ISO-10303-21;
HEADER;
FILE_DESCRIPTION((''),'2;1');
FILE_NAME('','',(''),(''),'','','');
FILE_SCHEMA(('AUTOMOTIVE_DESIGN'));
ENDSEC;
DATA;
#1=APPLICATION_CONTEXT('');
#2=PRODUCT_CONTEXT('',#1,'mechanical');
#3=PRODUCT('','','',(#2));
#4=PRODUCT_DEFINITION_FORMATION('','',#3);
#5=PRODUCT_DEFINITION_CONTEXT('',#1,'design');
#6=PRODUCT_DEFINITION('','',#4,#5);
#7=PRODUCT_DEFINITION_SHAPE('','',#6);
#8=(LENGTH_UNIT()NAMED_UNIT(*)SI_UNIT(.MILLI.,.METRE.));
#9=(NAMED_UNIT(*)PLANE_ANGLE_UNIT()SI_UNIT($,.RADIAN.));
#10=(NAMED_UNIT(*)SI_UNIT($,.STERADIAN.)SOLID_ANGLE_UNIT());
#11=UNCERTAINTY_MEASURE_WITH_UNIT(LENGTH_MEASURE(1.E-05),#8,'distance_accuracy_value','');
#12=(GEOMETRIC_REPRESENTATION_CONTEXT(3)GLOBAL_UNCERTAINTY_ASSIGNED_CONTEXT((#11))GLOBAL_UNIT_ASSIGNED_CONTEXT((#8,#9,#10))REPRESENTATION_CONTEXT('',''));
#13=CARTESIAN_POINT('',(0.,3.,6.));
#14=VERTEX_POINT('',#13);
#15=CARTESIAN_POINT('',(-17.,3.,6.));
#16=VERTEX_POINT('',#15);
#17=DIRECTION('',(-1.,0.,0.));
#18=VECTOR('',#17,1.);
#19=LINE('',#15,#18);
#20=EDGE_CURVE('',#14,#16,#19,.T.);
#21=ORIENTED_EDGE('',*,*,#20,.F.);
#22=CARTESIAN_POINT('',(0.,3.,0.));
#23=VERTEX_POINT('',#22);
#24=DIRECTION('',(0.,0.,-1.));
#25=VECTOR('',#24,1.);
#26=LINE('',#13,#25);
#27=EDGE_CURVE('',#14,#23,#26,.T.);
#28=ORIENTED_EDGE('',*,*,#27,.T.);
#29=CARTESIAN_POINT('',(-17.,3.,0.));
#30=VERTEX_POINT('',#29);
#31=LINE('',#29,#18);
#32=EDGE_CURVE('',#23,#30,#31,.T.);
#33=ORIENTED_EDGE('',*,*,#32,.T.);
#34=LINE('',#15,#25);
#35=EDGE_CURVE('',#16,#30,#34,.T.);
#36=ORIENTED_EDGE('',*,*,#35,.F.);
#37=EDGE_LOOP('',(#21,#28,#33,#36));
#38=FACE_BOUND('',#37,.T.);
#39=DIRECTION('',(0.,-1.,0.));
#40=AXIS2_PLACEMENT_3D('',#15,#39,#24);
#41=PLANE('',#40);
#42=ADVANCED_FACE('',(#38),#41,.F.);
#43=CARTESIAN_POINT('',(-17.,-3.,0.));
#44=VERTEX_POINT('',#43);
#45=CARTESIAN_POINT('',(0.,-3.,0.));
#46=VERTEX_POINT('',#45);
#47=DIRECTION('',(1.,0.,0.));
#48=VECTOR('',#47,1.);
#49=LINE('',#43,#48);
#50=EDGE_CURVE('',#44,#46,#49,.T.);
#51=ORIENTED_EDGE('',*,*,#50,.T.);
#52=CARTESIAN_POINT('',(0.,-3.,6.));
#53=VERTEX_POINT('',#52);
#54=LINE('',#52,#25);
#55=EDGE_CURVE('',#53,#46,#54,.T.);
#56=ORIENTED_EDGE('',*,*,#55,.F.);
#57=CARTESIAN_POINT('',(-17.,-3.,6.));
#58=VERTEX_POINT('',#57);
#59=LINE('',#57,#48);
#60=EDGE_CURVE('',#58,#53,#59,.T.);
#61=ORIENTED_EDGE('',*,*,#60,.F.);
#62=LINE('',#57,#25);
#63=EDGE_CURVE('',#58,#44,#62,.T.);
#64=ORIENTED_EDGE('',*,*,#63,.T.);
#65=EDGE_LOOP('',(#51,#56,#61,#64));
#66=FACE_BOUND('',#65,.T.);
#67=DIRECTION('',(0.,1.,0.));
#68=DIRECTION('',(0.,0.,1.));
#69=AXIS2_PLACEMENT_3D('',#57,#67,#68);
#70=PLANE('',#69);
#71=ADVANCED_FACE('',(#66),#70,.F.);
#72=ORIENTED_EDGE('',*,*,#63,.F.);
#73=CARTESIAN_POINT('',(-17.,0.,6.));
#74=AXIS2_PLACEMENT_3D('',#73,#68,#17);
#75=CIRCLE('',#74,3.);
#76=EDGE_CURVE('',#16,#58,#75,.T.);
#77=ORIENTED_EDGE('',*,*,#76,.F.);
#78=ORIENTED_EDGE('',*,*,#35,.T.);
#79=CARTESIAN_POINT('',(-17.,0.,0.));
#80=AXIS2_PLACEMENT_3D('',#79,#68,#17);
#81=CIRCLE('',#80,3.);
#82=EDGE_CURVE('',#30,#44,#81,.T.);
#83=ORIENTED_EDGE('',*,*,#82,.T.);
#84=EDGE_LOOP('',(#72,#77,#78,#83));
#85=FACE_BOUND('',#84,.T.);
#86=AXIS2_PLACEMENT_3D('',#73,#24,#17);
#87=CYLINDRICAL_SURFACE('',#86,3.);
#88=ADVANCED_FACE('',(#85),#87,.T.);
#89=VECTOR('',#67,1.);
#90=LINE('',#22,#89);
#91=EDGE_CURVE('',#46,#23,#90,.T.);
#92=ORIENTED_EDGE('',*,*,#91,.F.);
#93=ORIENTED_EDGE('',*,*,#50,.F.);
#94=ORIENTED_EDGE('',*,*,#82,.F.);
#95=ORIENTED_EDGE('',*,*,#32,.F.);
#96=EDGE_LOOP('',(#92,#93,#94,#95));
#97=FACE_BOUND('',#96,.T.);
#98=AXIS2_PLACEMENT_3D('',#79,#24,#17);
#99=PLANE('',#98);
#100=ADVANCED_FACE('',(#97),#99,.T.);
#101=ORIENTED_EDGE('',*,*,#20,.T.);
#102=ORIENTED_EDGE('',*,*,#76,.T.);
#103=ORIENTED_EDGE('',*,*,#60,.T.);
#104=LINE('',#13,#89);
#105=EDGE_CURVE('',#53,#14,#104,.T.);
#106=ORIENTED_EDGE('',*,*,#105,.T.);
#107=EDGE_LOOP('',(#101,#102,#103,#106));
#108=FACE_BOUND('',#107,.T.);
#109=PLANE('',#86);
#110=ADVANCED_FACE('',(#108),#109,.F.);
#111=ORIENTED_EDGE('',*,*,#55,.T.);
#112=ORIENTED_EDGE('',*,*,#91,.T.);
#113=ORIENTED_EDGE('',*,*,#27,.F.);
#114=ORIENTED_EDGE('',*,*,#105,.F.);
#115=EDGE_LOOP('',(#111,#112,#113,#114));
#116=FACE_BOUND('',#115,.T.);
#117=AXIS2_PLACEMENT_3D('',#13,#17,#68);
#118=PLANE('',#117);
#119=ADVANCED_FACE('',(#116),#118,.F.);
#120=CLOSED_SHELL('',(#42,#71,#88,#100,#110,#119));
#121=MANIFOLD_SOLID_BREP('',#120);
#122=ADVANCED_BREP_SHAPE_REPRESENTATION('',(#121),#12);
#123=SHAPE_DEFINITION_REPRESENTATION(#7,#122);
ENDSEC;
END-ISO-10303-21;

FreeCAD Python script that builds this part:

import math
import FreeCAD as App
import Part
import Sketcher
Q = App.Units.Quantity

doc = App.newDocument("Part")
body = doc.addObject("PartDesign::Body", "Body")

sketch1 = body.newObject("Sketcher::SketchObject", "Sketch")
sketch1.AttachmentSupport = (doc.getObject("XY_Plane"), [""])
sketch1.MapMode = "FlatFace"
sketch1.addGeometry(Part.LineSegment(App.Vector(-17, -3, 0), App.Vector(0, -3, 0)), False)
sketch1.addGeometry(Part.LineSegment(App.Vector(0, -3, 0), App.Vector(0, 3, 0)), False)
sketch1.addGeometry(Part.LineSegment(App.Vector(0, 3, 0), App.Vector(-17, 3, 0)), False)
sketch1.addGeometry(Part.ArcOfCircle(Part.Circle(App.Vector(-17, 0, 0), App.Vector(0, 0, 1), 3), math.radians(90), math.radians(270)), False)
sketch1.addConstraint(Sketcher.Constraint("Coincident", 0, 2, 1, 1))
sketch1.addConstraint(Sketcher.Constraint("Coincident", 1, 2, 2, 1))
sketch1.addConstraint(Sketcher.Constraint("Tangent", 2, 2, 3, 1))
sketch1.addConstraint(Sketcher.Constraint("Tangent", 3, 2, 0, 1))
sketch1.addConstraint(Sketcher.Constraint("Horizontal", 0))
sketch1.addConstraint(Sketcher.Constraint("Vertical", 1))
sketch1.addConstraint(Sketcher.Constraint("Horizontal", 2))
sketch1.addConstraint(Sketcher.Constraint("Symmetric", 0, 2, 1, 2, -1, 1))
sketch1.addConstraint(Sketcher.Constraint("Radius", 3, Q("3 mm")))
sketch1.addConstraint(Sketcher.Constraint("DistanceX", 0, 1, 0, 2, Q("17 mm")))
pad1 = body.newObject("PartDesign::Pad", "Pad")
pad1.Profile = sketch1
pad1.Length = 6

doc.recompute()
